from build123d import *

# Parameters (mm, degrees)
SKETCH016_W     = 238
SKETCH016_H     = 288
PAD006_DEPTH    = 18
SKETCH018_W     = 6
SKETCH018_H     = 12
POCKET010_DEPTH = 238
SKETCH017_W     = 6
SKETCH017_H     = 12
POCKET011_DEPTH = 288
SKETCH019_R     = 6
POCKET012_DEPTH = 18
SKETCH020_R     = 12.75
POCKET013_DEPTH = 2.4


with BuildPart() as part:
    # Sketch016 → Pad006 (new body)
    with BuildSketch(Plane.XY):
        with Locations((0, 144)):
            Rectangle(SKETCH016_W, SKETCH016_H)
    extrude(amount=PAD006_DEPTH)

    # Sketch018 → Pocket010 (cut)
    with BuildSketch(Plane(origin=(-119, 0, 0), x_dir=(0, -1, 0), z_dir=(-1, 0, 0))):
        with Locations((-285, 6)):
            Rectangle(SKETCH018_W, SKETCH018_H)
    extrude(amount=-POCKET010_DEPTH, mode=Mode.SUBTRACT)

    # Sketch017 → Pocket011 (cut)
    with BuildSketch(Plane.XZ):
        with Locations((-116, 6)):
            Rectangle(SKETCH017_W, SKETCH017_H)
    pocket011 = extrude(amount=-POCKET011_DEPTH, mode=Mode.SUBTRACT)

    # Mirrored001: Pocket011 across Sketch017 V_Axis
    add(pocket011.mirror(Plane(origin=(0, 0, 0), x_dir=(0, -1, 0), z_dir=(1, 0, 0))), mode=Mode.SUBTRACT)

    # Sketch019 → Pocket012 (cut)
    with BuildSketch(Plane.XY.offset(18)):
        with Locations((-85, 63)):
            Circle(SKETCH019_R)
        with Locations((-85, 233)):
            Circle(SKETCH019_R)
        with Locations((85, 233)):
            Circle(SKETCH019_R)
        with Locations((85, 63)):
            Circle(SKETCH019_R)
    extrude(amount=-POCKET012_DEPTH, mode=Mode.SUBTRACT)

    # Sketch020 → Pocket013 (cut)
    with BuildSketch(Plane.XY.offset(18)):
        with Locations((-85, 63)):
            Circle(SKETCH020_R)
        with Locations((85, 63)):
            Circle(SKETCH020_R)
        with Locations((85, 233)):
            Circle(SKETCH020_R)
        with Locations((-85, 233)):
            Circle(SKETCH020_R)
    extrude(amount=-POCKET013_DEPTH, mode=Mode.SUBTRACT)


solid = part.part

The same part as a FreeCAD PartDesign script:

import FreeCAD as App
import Part
import Sketcher

V = App.Vector


def add_polygon(sketch, points):
    """Adds a closed chain of lines whose ends are joined by coincident constraints."""
    first, n = sketch.GeometryCount, len(points)
    for a, b in zip(points, points[1:] + points[:1]):
        sketch.addGeometry(Part.LineSegment(App.Vector(*a, 0), App.Vector(*b, 0)), False)
    for i in range(n):
        sketch.addConstraint(Sketcher.Constraint("Coincident", first + i, 2, first + (i + 1) % n, 1))

doc = App.newDocument("Part")
body = doc.addObject("PartDesign::Body", "Body")

sketch1 = body.newObject("Sketcher::SketchObject", "Sketch")
sketch1.AttachmentSupport = (doc.getObject("XY_Plane"), [""])
sketch1.MapMode = "FlatFace"
add_polygon(sketch1, [(-119, 288), (-119, 0), (119, 0), (119, 288)])
sketch1.addConstraint([
    Sketcher.Constraint("Vertical", 0),
    Sketcher.Constraint("Horizontal", 1),
    Sketcher.Constraint("Vertical", 2),
    Sketcher.Constraint("Horizontal", 3),
    Sketcher.Constraint("Symmetric", 0, 2, 1, 2, -1, 1),
    Sketcher.Constraint("DistanceX", 1, 1, 1, 2, 238.0),
    Sketcher.Constraint("DistanceY", 0, 2, 0, 1, 288.0),
])
pad1 = body.newObject("PartDesign::Pad", "Pad")
pad1.Profile = sketch1
pad1.Length = 18

sketch2 = body.newObject("Sketcher::SketchObject", "Sketch001")
sketch2.AttachmentSupport = (doc.getObject("YZ_Plane"), [""])
sketch2.MapMode = "FlatFace"
sketch2.AttachmentOffset = App.Placement(V(0, 0, -119), App.Rotation())
add_polygon(sketch2, [(288, 12), (288, 0), (282, 0), (282, 12)])
sketch2.addConstraint([
    Sketcher.Constraint("Vertical", 0),
    Sketcher.Constraint("Horizontal", 1),
    Sketcher.Constraint("Vertical", 2),
    Sketcher.Constraint("Horizontal", 3),
    Sketcher.Constraint("PointOnObject", 0, 2, -1),
    Sketcher.Constraint("DistanceX", 1, 2, 1, 1, 6.0),
    Sketcher.Constraint("DistanceY", 0, 2, 0, 1, 12.0),
    Sketcher.Constraint("DistanceX", -1, 1, 0, 2, 288.0),
])
pocket1 = body.newObject("PartDesign::Pocket", "Pocket")
pocket1.Profile = sketch2
pocket1.Length = 238
pocket1.Reversed = True

sketch3 = body.newObject("Sketcher::SketchObject", "Sketch002")
sketch3.AttachmentSupport = (doc.getObject("XZ_Plane"), [""])
sketch3.MapMode = "FlatFace"
add_polygon(sketch3, [(-119, 12), (-119, 0), (-113, 0), (-113, 12)])
sketch3.addConstraint([
    Sketcher.Constraint("Vertical", 0),
    Sketcher.Constraint("Horizontal", 1),
    Sketcher.Constraint("Vertical", 2),
    Sketcher.Constraint("Horizontal", 3),
    Sketcher.Constraint("PointOnObject", 0, 2, -1),
    Sketcher.Constraint("DistanceX", 1, 1, 1, 2, 6.0),
    Sketcher.Constraint("DistanceY", 0, 2, 0, 1, 12.0),
    Sketcher.Constraint("DistanceX", 0, 2, -1, 1, 119.0),
])
pocket2 = body.newObject("PartDesign::Pocket", "Pocket001")
pocket2.Profile = sketch3
pocket2.Length = 288
doc.recompute()

mirrored = body.newObject("PartDesign::Mirrored", "Mirrored")
mirrored.Originals = [pocket2]
mirrored.MirrorPlane = (doc.getObject("YZ_Plane"), [""])
body.Tip = mirrored

sketch4 = body.newObject("Sketcher::SketchObject", "Sketch003")
sketch4.AttachmentSupport = (doc.getObject("XY_Plane"), [""])
sketch4.MapMode = "FlatFace"
sketch4.AttachmentOffset = App.Placement(V(0, 0, 18), App.Rotation())
sketch4.addGeometry([
    Part.Circle(V(-85, 63, 0), V(0, 0, 1), 6),
    Part.Circle(V(-85, 233, 0), V(0, 0, 1), 6),
    Part.Circle(V(85, 233, 0), V(0, 0, 1), 6),
    Part.Circle(V(85, 63, 0), V(0, 0, 1), 6),
], False)
sketch4.addConstraint([
    Sketcher.Constraint("Equal", 0, 1),
    Sketcher.Constraint("Equal", 1, 2),
    Sketcher.Constraint("Equal", 2, 3),
    Sketcher.Constraint("Symmetric", 1, 3, 2, 3, -2),
    Sketcher.Constraint("Symmetric", 0, 3, 3, 3, -2),
    Sketcher.Constraint("Vertical", 0, 3, 1, 3),
    Sketcher.Constraint("Diameter", 0, 12.0),
    Sketcher.Constraint("DistanceX", 0, 3, -1, 1, 85.0),
    Sketcher.Constraint("DistanceY", -1, 1, 0, 3, 63.0),
    Sketcher.Constraint("DistanceY", -1, 1, 1, 3, 233.0),
])
pocket3 = body.newObject("PartDesign::Pocket", "Pocket002")
pocket3.Profile = sketch4
pocket3.Length = 18

sketch5 = body.newObject("Sketcher::SketchObject", "Sketch004")
sketch5.AttachmentSupport = (doc.getObject("XY_Plane"), [""])
sketch5.MapMode = "FlatFace"
sketch5.AttachmentOffset = App.Placement(V(0, 0, 18), App.Rotation())
sketch5.addGeometry([
    Part.Circle(V(-85, 63, 0), V(0, 0, 1), 13),
    Part.Circle(V(85, 63, 0), V(0, 0, 1), 13),
    Part.Circle(V(85, 233, 0), V(0, 0, 1), 13),
    Part.Circle(V(-85, 233, 0), V(0, 0, 1), 13),
], False)
sketch5.addConstraint([
    Sketcher.Constraint("Equal", 0, 1),
    Sketcher.Constraint("Equal", 1, 2),
    Sketcher.Constraint("Equal", 2, 3),
    Sketcher.Constraint("Symmetric", 0, 3, 1, 3, -2),
    Sketcher.Constraint("Symmetric", 2, 3, 3, 3, -2),
    Sketcher.Constraint("Vertical", 1, 3, 2, 3),
    Sketcher.Constraint("Diameter", 0, 25.5),
    Sketcher.Constraint("DistanceX", 0, 3, -1, 1, 85.0),
    Sketcher.Constraint("DistanceY", -1, 1, 0, 3, 63.0),
    Sketcher.Constraint("DistanceY", -1, 1, 2, 3, 233.0),
])
pocket4 = body.newObject("PartDesign::Pocket", "Pocket003")
pocket4.Profile = sketch5
pocket4.Length = 2.4

doc.recompute()
